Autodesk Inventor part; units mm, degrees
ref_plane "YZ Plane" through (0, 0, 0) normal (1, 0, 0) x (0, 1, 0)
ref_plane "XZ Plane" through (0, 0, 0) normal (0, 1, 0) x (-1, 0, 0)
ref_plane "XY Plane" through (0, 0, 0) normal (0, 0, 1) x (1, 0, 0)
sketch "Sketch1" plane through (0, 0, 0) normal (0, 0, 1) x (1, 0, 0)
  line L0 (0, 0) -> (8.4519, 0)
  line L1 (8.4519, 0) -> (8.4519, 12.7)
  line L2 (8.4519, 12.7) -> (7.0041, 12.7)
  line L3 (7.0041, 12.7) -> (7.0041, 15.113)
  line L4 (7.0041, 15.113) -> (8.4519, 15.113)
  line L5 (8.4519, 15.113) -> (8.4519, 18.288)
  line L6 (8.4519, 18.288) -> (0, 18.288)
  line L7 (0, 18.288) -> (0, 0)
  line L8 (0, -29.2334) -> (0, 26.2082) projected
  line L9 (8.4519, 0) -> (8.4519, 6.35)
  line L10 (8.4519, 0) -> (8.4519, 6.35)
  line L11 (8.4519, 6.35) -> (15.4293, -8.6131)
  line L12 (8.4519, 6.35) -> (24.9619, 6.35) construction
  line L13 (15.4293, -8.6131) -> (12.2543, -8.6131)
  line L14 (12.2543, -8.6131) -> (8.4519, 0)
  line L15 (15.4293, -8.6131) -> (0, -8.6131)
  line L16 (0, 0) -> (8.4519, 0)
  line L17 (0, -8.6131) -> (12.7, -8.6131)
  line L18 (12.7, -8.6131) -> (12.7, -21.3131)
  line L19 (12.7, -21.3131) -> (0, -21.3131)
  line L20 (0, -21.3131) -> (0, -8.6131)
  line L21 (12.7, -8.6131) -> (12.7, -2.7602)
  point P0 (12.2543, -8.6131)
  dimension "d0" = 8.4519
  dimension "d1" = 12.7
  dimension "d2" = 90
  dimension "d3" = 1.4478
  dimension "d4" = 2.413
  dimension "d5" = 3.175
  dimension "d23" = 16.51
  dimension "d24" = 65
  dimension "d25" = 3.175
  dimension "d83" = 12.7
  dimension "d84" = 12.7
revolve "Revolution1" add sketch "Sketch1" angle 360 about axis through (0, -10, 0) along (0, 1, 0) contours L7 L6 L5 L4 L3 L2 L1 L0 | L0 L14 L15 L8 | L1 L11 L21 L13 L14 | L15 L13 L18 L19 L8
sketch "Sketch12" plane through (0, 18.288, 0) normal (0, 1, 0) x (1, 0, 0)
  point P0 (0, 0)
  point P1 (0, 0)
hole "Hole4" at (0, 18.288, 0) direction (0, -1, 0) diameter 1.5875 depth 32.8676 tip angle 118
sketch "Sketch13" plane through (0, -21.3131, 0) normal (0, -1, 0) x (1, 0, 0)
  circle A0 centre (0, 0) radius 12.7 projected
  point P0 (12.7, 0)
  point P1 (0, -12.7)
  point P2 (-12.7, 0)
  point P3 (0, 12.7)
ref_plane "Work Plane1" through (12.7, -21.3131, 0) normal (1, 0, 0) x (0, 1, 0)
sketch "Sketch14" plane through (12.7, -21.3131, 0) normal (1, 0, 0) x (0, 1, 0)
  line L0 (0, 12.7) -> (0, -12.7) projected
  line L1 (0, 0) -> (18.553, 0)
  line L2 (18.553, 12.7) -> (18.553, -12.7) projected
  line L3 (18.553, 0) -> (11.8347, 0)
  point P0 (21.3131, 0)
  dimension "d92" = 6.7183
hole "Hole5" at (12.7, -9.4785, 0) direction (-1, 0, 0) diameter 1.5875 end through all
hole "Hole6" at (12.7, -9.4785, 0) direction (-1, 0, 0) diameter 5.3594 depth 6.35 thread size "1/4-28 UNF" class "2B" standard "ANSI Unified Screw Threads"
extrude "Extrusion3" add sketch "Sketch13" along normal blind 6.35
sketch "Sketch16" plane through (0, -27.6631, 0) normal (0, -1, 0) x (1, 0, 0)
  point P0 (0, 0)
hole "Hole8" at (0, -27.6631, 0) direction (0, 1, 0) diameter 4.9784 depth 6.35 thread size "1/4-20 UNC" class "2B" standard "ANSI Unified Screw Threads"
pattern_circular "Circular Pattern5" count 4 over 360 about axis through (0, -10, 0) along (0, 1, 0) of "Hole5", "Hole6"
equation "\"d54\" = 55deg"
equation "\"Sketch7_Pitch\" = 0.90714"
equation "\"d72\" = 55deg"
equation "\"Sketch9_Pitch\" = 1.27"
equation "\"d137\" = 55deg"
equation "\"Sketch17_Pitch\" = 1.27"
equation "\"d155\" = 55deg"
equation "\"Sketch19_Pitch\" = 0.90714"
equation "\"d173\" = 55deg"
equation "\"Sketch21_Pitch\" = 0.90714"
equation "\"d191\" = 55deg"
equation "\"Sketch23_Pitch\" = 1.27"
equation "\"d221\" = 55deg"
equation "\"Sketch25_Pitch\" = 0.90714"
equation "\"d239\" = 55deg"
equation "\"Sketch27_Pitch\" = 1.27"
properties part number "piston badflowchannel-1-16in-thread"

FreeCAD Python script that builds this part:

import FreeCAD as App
import Part
import Sketcher
Q = App.Units.Quantity


def add_polygon(sketch, points):
    """Adds a closed chain of lines whose ends are joined by coincident constraints."""
    first, n = sketch.GeometryCount, len(points)
    for a, b in zip(points, points[1:] + points[:1]):
        sketch.addGeometry(Part.LineSegment(App.Vector(*a, 0), App.Vector(*b, 0)), False)
    for i in range(n):
        sketch.addConstraint(Sketcher.Constraint("Coincident", first + i, 2, first + (i + 1) % n, 1))

doc = App.newDocument("Part")
body = doc.addObject("PartDesign::Body", "Body")

sketch1 = body.newObject("Sketcher::SketchObject", "Sketch")
sketch1.AttachmentSupport = (doc.getObject("XY_Plane"), [""])
sketch1.MapMode = "FlatFace"
add_polygon(sketch1, [(0, 18.3), (0, -21.3), (12.7, -21.3), (12.7, -2.8), (8.5, 6.3), (8.5, 12.7), (7, 12.7), (7, 15.1), (8.5, 15.1), (8.5, 18.3)])
sketch1.addConstraint([
    Sketcher.Constraint("Vertical", 0),
    Sketcher.Constraint("Horizontal", 1),
    Sketcher.Constraint("Vertical", 2),
    Sketcher.Constraint("Vertical", 4),
    Sketcher.Constraint("Horizontal", 5),
    Sketcher.Constraint("Vertical", 6),
    Sketcher.Constraint("Horizontal", 7),
    Sketcher.Constraint("Vertical", 8),
    Sketcher.Constraint("Horizontal", 9),
    Sketcher.Constraint("PointOnObject", 0, 2, -2),
    Sketcher.Constraint("Vertical", 4, 2, 7, 2),
    Sketcher.Constraint("DistanceX", 1, 1, 1, 2, Q("0.5 in")),
    Sketcher.Constraint("DistanceY", -1, 1, 4, 2, Q("0.5 in")),
    Sketcher.Constraint("DistanceX", 5, 2, 5, 1, Q("0.057 in")),
    Sketcher.Constraint("DistanceY", 6, 1, 6, 2, Q("0.095 in")),
    Sketcher.Constraint("DistanceY", 8, 1, 8, 2, Q("0.125 in")),
    Sketcher.Constraint("Angle", 3, Q("115 deg")),
    Sketcher.Constraint("DistanceX", 9, 2, 9, 1, 8.452),
    Sketcher.Constraint("DistanceY", 4, 1, 4, 2, Q("0.25 in")),
    Sketcher.Constraint("DistanceY", 0, 2, 0, 1, Q("1.5591 in")),
])
revolution = body.newObject("PartDesign::Revolution", "Revolution")
revolution.Profile = sketch1
revolution.ReferenceAxis = (sketch1, ["V_Axis"])
revolution.Angle = 360

sketch2 = body.newObject("Sketcher::SketchObject", "Sketch001")
sketch2.AttachmentSupport = (doc.getObject("XZ_Plane"), [""])
sketch2.MapMode = "FlatFace"
sketch2.AttachmentOffset = App.Placement(App.Vector(0, 0, -0.72 * 25.4), App.Rotation())
sketch2.addGeometry(Part.Circle(App.Vector(0, 0, 0), App.Vector(0, 0, 1), 0.8), False)
sketch2.addConstraint([
    Sketcher.Constraint("Coincident", 0, 3, -1, 1),
    Sketcher.Constraint("Diameter", 0, Q("0.0625 in")),
])
doc.recompute()
hole = body.newObject("PartDesign::Hole", "Hole")
hole.Profile = sketch2
hole.ThreadType = "None"
hole.Diameter = Q("0.0625 in")
hole.DepthType = "Dimension"
hole.Depth = Q("1.294 in")
hole.DrillPoint = "Angled"
hole.DrillPointAngle = 118
hole.Reversed = True

sketch3 = body.newObject("Sketcher::SketchObject", "Sketch002")
sketch3.AttachmentSupport = (doc.getObject("YZ_Plane"), [""])
sketch3.MapMode = "FlatFace"
sketch3.AttachmentOffset = App.Placement(App.Vector(0, 0, 0.5 * 25.4), App.Rotation())
sketch3.addGeometry(Part.Circle(App.Vector(-9.5, 0, 0), App.Vector(0, 0, 1), 0.8), False)
sketch3.addConstraint([
    Sketcher.Constraint("PointOnObject", 0, 3, -1),
    Sketcher.Constraint("Diameter", 0, Q("0.0625 in")),
    Sketcher.Constraint("DistanceX", 0, 3, -1, 1, 9.4785),
])
doc.recompute()
hole2 = body.newObject("PartDesign::Hole", "Hole001")
hole2.Profile = sketch3
hole2.ThreadType = "None"
hole2.Diameter = Q("0.0625 in")
hole2.DepthType = "ThroughAll"

sketch4 = body.newObject("Sketcher::SketchObject", "Sketch003")
sketch4.AttachmentSupport = (doc.getObject("YZ_Plane"), [""])
sketch4.MapMode = "FlatFace"
sketch4.AttachmentOffset = App.Placement(App.Vector(0, 0, 0.5 * 25.4), App.Rotation())
sketch4.addGeometry(Part.Circle(App.Vector(-9.5, 0, 0), App.Vector(0, 0, 1), 2.7), False)
sketch4.addConstraint([
    Sketcher.Constraint("PointOnObject", 0, 3, -1),
    Sketcher.Constraint("Diameter", 0, Q("0.211 in")),
    Sketcher.Constraint("DistanceX", 0, 3, -1, 1, 9.4785),
])
doc.recompute()
hole3 = body.newObject("PartDesign::Hole", "Hole002")
hole3.Profile = sketch4
hole3.ThreadType = "None"
hole3.Diameter = Q("0.211 in")
hole3.DepthType = "Dimension"
hole3.Depth = Q("0.25 in")
hole3.DrillPoint = "Flat"

sketch5 = body.newObject("Sketcher::SketchObject", "Sketch004")
sketch5.AttachmentSupport = (doc.getObject("XZ_Plane"), [""])
sketch5.MapMode = "FlatFace"
sketch5.AttachmentOffset = App.Placement(App.Vector(0, 0, 0.8390984 * 25.4), App.Rotation())
sketch5.addGeometry(Part.Circle(App.Vector(0, 0, 0), App.Vector(0, 0, 1), 13), False)
sketch5.addConstraint([
    Sketcher.Constraint("Coincident", 0, 3, -1, 1),
    Sketcher.Constraint("Diameter", 0, Q("1 in")),
])
pad1 = body.newObject("PartDesign::Pad", "Pad")
pad1.Profile = sketch5
pad1.Length = Q("0.25 in")

sketch6 = body.newObject("Sketcher::SketchObject", "Sketch005")
sketch6.AttachmentSupport = (doc.getObject("XZ_Plane"), [""])
sketch6.MapMode = "FlatFace"
sketch6.AttachmentOffset = App.Placement(App.Vector(0, 0, 1.0890984 * 25.4), App.Rotation())
sketch6.addGeometry(Part.Circle(App.Vector(0, 0, 0), App.Vector(0, 0, 1), 2.5), False)
sketch6.addConstraint([
    Sketcher.Constraint("Coincident", 0, 3, -1, 1),
    Sketcher.Constraint("Diameter", 0, Q("0.196 in")),
])
doc.recompute()
hole4 = body.newObject("PartDesign::Hole", "Hole003")
hole4.Profile = sketch6
hole4.ThreadType = "None"
hole4.Diameter = Q("0.196 in")
hole4.DepthType = "Dimension"
hole4.Depth = Q("0.25 in")
hole4.DrillPoint = "Flat"
doc.recompute()

polarpattern = body.newObject("PartDesign::PolarPattern", "PolarPattern")
polarpattern.Originals = [hole2, hole3]
polarpattern.Axis = (doc.getObject("Y_Axis"), [""])
polarpattern.Angle = 360
polarpattern.Occurrences = 4
body.Tip = polarpattern

doc.recompute()
